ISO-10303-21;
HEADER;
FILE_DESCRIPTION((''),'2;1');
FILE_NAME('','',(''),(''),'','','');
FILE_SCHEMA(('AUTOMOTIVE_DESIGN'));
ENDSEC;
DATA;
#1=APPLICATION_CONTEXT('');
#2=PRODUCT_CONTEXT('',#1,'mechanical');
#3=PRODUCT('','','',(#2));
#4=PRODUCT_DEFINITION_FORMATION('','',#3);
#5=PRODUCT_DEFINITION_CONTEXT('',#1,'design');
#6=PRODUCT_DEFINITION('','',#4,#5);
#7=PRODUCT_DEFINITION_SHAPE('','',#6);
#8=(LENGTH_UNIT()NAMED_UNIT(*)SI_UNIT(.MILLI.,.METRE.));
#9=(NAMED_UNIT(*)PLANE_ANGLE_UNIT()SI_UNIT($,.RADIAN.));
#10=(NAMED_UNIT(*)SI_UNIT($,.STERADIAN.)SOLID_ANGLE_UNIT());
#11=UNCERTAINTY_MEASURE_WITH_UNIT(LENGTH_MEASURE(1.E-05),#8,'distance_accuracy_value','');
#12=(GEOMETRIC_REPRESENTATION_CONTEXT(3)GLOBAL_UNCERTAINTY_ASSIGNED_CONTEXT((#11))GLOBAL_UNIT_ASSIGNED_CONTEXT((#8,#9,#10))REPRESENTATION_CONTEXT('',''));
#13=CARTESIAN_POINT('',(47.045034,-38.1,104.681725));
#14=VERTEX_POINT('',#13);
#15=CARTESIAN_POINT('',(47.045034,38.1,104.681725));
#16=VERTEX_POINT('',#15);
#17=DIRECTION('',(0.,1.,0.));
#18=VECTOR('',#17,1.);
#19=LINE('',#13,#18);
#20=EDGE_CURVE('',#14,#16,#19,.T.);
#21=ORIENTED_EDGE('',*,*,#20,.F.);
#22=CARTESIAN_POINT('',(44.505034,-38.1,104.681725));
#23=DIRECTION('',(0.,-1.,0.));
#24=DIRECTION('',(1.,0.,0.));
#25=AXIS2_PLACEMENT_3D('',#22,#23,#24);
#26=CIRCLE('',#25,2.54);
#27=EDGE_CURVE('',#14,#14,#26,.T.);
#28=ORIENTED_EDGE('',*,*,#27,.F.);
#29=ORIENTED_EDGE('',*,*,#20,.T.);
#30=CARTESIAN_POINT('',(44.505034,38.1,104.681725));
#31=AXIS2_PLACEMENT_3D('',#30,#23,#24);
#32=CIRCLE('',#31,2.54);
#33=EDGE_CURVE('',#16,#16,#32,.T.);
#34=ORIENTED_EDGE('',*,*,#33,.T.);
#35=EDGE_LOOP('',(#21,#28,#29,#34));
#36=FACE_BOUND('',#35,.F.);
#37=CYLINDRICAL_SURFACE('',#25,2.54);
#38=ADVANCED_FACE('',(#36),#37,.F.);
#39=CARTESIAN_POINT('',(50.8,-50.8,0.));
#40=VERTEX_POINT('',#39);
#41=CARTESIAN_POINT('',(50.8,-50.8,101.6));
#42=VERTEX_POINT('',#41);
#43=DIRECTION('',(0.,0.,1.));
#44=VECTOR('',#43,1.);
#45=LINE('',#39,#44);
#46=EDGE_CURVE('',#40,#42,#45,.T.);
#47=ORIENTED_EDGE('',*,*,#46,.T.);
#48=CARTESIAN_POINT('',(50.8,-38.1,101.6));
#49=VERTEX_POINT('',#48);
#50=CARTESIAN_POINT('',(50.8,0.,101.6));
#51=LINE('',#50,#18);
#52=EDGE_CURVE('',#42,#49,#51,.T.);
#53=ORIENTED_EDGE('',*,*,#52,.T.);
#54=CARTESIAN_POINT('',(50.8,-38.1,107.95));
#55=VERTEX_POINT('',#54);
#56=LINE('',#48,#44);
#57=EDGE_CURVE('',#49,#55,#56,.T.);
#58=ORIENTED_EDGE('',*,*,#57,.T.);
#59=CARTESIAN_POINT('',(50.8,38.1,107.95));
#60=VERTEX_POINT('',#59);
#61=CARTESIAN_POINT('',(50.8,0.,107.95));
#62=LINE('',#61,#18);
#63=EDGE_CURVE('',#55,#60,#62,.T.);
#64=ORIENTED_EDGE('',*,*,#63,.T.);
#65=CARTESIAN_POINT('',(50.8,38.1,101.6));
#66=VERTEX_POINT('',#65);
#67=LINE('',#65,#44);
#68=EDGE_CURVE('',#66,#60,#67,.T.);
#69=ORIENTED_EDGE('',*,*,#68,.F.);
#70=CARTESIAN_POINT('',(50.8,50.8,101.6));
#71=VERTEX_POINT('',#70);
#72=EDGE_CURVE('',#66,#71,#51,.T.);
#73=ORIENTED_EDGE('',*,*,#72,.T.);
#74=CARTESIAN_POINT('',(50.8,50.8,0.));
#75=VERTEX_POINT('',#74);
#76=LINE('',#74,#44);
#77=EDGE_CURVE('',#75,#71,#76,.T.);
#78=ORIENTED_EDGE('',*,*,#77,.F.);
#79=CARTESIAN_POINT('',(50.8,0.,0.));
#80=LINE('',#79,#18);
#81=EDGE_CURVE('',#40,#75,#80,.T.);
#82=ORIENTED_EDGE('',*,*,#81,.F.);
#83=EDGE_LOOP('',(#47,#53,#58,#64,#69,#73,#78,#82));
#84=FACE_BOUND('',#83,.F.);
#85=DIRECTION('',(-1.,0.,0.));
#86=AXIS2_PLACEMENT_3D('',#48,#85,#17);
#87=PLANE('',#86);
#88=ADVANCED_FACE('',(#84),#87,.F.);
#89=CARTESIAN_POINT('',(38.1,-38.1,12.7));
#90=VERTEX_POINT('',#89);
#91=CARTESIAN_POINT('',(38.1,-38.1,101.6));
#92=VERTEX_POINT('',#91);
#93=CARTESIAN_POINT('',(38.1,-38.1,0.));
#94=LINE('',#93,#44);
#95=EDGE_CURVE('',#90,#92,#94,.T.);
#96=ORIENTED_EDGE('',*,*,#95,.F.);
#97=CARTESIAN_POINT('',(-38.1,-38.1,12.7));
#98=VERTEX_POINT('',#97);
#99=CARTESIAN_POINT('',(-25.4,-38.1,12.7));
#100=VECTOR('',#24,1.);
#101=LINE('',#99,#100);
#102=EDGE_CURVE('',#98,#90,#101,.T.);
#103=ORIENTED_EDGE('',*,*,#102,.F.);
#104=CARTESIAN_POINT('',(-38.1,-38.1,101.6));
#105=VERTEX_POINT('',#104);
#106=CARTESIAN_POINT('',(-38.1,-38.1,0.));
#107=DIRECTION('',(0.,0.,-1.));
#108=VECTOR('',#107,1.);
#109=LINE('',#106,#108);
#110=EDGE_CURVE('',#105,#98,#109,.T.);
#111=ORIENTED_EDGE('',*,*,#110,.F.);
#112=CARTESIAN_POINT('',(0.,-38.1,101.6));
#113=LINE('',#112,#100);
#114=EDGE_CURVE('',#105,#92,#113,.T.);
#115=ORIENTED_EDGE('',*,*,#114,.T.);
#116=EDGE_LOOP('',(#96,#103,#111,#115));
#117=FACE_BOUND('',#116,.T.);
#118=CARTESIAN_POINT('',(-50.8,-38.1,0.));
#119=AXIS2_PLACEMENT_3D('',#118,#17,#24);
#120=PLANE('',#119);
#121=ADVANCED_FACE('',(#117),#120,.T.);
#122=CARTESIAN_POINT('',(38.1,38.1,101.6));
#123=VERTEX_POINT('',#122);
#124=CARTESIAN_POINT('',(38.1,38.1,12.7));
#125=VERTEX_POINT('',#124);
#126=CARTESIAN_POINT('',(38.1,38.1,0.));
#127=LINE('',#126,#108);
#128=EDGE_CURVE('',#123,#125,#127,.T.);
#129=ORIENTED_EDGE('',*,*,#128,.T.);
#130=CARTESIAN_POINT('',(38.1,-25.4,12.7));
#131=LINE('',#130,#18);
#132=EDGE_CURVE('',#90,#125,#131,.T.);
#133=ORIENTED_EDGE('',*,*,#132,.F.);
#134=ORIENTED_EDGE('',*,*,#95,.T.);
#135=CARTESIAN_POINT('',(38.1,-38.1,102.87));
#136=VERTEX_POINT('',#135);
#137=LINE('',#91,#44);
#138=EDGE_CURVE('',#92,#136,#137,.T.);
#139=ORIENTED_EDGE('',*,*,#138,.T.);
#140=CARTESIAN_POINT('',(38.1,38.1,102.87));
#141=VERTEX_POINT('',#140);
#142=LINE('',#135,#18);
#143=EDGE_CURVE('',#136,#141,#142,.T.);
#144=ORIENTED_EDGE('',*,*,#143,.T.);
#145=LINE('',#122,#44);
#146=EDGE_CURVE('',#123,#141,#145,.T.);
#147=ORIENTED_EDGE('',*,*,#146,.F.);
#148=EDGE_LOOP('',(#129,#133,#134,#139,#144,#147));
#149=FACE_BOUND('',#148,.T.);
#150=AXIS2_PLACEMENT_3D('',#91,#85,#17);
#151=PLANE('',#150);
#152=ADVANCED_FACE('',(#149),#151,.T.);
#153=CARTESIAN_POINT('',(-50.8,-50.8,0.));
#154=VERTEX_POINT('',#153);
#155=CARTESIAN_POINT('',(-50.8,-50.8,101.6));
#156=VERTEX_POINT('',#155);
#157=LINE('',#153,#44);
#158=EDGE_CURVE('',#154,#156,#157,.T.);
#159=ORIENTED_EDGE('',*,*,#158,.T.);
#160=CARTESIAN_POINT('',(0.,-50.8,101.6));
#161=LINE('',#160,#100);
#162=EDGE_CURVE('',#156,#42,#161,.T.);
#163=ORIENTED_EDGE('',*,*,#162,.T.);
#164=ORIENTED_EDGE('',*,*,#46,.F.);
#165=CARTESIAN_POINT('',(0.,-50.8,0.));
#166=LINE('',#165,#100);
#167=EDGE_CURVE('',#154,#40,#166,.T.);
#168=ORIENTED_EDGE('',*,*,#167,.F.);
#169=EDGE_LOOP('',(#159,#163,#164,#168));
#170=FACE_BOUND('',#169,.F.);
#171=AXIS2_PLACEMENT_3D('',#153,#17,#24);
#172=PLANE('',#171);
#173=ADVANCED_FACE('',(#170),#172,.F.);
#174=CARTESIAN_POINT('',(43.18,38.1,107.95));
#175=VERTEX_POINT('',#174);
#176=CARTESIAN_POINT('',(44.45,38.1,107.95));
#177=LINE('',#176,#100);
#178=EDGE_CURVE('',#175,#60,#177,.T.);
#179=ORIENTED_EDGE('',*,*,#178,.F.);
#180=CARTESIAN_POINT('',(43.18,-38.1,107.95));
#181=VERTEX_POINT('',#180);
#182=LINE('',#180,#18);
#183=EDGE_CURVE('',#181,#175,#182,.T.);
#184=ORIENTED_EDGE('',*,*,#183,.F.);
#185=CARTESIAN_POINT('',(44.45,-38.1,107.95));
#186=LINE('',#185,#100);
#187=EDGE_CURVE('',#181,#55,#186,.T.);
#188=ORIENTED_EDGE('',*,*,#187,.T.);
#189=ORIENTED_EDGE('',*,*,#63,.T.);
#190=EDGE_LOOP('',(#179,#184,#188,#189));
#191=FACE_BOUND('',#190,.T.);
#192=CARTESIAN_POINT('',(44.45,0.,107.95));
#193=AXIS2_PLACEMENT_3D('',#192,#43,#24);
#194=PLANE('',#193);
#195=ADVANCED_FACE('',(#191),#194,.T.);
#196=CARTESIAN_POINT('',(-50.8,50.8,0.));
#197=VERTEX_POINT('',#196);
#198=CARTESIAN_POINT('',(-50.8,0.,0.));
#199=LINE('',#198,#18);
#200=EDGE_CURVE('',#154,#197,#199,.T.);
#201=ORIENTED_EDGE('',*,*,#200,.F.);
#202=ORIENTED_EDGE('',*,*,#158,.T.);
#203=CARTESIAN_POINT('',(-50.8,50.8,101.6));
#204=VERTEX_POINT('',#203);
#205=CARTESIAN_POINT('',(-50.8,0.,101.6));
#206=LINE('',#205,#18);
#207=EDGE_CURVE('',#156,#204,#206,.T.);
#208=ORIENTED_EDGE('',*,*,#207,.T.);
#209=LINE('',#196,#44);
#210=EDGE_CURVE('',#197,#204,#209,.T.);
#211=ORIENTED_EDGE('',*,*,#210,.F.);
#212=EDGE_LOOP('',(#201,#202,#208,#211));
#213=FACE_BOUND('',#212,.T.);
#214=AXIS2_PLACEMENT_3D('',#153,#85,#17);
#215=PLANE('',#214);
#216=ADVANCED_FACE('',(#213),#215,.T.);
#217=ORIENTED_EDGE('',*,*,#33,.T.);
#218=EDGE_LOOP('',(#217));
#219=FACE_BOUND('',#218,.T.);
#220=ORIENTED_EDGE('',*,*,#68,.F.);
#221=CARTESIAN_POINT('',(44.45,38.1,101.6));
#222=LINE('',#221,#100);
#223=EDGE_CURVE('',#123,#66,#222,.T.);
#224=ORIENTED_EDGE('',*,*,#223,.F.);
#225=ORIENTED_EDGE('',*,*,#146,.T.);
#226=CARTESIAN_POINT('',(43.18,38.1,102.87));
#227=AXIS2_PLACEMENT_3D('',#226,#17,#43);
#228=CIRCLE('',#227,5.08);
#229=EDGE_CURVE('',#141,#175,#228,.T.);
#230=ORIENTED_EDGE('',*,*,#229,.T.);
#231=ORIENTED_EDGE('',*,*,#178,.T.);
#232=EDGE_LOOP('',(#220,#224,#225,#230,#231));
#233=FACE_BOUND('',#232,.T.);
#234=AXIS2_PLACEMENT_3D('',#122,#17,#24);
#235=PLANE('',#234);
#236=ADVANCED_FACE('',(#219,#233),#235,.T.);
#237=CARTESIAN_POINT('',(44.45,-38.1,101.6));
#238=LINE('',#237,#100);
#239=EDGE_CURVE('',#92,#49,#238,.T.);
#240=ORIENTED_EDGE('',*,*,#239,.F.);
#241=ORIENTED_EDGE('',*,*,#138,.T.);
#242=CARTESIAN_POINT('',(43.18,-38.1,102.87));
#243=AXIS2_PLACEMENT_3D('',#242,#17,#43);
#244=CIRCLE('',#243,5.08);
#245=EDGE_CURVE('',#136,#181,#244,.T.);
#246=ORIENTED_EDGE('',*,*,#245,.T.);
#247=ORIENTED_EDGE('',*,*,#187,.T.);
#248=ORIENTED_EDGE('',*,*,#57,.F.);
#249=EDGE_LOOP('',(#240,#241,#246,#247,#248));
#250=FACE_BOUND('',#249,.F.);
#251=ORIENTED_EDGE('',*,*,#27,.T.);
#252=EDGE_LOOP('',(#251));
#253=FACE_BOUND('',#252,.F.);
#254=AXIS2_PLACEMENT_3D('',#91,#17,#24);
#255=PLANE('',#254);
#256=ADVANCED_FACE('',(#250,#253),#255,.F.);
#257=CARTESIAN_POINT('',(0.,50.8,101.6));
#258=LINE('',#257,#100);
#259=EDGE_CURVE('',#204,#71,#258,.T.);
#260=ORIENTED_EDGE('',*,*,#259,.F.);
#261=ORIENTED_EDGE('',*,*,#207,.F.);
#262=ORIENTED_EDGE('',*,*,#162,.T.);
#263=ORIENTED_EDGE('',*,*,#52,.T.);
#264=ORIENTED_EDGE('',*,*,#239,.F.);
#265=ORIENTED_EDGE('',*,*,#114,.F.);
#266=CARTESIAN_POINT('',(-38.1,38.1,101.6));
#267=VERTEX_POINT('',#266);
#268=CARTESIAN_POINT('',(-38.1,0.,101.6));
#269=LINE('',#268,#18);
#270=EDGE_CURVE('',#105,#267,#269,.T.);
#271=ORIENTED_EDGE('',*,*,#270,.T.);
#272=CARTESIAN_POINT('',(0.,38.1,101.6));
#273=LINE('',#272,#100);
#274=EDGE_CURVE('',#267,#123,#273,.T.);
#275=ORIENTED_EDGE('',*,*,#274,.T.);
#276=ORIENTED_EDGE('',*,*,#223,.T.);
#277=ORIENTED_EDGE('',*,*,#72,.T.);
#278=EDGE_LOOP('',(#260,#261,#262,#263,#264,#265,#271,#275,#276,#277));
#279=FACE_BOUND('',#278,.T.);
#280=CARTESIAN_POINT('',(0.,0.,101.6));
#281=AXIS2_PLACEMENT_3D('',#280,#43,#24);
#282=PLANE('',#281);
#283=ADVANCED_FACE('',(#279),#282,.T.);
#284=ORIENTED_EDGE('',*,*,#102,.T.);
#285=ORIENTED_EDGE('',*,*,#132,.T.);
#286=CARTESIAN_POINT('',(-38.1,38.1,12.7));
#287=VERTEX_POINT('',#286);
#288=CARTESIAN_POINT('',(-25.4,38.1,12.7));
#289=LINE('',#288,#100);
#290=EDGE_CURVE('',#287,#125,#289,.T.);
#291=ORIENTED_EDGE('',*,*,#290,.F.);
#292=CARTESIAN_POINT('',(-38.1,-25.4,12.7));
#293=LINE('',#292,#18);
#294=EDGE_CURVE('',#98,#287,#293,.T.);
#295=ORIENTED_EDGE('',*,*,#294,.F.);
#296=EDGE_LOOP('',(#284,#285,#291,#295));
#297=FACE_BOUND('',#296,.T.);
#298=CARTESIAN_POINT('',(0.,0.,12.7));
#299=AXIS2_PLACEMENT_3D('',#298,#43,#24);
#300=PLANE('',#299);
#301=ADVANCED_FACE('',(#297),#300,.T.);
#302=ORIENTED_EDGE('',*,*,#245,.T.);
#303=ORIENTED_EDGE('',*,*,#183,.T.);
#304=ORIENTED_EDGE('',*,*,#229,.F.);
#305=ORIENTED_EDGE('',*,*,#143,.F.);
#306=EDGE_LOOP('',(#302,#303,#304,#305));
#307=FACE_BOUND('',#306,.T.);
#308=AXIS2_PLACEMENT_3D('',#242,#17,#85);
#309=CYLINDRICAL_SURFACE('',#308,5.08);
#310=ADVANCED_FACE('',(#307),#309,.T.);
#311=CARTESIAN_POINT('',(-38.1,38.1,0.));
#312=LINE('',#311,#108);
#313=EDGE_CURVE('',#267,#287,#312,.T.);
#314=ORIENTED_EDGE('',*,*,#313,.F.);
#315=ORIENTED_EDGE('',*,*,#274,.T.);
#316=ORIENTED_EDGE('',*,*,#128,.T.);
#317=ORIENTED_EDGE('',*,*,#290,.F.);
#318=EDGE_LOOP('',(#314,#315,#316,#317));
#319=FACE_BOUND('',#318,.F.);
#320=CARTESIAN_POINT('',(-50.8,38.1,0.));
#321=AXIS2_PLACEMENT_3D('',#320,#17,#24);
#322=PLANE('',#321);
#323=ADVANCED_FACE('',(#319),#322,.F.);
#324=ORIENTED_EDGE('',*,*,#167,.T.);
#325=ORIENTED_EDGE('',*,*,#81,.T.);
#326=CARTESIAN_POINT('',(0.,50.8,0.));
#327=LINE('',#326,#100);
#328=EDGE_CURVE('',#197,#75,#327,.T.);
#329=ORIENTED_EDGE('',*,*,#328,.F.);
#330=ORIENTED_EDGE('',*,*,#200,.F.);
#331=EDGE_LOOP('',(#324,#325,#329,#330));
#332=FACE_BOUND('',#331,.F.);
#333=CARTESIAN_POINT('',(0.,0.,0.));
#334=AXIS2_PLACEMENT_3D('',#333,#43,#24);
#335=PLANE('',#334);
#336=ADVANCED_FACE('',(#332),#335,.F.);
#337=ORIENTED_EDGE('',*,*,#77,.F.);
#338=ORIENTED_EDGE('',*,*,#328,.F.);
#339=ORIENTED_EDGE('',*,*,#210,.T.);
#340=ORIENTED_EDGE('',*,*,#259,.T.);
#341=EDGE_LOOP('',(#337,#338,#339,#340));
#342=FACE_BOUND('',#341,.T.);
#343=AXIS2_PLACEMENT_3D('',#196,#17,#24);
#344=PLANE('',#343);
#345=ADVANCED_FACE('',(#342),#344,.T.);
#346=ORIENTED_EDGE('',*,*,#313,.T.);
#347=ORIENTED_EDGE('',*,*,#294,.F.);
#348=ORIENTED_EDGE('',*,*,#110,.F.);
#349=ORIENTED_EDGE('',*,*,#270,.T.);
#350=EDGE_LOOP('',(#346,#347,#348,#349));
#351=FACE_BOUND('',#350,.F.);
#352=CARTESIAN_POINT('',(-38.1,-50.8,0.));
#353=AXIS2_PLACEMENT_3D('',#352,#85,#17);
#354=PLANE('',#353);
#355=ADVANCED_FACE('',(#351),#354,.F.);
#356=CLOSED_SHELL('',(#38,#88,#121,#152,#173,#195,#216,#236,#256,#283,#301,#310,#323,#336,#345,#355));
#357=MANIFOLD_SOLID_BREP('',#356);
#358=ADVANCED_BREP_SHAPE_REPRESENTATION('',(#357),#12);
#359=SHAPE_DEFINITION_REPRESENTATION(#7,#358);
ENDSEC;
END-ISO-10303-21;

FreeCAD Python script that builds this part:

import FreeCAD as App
import Part
import Sketcher

V = App.Vector
Q = App.Units.Quantity


def edges_at(feature, points):
    """Names of the edges that pass closest to the given points."""
    edges = feature.Shape.Edges
    near = lambda p: min(range(len(edges)), key=lambda i: edges[i].distToShape(Part.Vertex(*p))[0])
    return sorted({f"Edge{near(p) + 1}" for p in points})


def faces_at(feature, points):
    """Names of the faces that lie closest to the given points."""
    faces = feature.Shape.Faces
    near = lambda p: min(range(len(faces)), key=lambda i: faces[i].distToShape(Part.Vertex(*p))[0])
    return sorted({f"Face{near(p) + 1}" for p in points})


def add_polygon(sketch, points):
    """Adds a closed chain of lines whose ends are joined by coincident constraints."""
    first, n = sketch.GeometryCount, len(points)
    for a, b in zip(points, points[1:] + points[:1]):
        sketch.addGeometry(Part.LineSegment(App.Vector(*a, 0), App.Vector(*b, 0)), False)
    for i in range(n):
        sketch.addConstraint(Sketcher.Constraint("Coincident", first + i, 2, first + (i + 1) % n, 1))

doc = App.newDocument("Part")
body = doc.addObject("PartDesign::Body", "Body")

sketch1 = body.newObject("Sketcher::SketchObject", "Sketch")
sketch1.AttachmentSupport = (doc.getObject("XY_Plane"), [""])
sketch1.MapMode = "FlatFace"
add_polygon(sketch1, [(-50.8, 50.8), (-50.8, -50.8), (50.8, -50.8), (50.8, 50.8)])
sketch1.addConstraint([
    Sketcher.Constraint("Vertical", 0),
    Sketcher.Constraint("Horizontal", 1),
    Sketcher.Constraint("Vertical", 2),
    Sketcher.Constraint("Horizontal", 3),
    Sketcher.Constraint("Symmetric", 0, 2, 2, 2, -1, 1),
    Sketcher.Constraint("Equal", 3, 0),
    Sketcher.Constraint("DistanceX", 1, 1, 1, 2, Q("4 in")),
])
pad1 = body.newObject("PartDesign::Pad", "Pad")
pad1.Profile = sketch1
pad1.Length = Q("4 in")
doc.recompute()

thickness = body.newObject("PartDesign::Thickness", "Thickness")
thickness.Base = (pad1, faces_at(pad1, [(0, 0, 101.6)]))
thickness.Value = Q("0.5 in")
thickness.Reversed = True
thickness.Join = "Arc"

sketch2 = body.newObject("Sketcher::SketchObject", "Sketch001")
sketch2.AttachmentSupport = (doc.getObject("XY_Plane"), [""])
sketch2.MapMode = "FlatFace"
sketch2.AttachmentOffset = App.Placement(V(0, 0, 4 * 25.4), App.Rotation())
add_polygon(sketch2, [(38.1, 38.1), (38.1, -38.1), (50.8, -38.1), (50.8, 38.1)])
sketch2.addConstraint([
    Sketcher.Constraint("Vertical", 0),
    Sketcher.Constraint("Horizontal", 1),
    Sketcher.Constraint("Vertical", 2),
    Sketcher.Constraint("Horizontal", 3),
    Sketcher.Constraint("DistanceY", 0, 2, 0, 1, Q("3 in")),
    Sketcher.Constraint("DistanceX", 1, 1, 1, 2, Q("0.5 in")),
    Sketcher.Constraint("DistanceX", -1, 1, 1, 2, Q("2 in")),
    Sketcher.Constraint("DistanceY", 0, 2, -1, 1, Q("1.5 in")),
])
pad2 = body.newObject("PartDesign::Pad", "Pad001")
pad2.Profile = sketch2
pad2.Length = Q("0.25 in")

sketch3 = body.newObject("Sketcher::SketchObject", "Sketch002")
sketch3.AttachmentSupport = (doc.getObject("XZ_Plane"), [""])
sketch3.MapMode = "FlatFace"
sketch3.AttachmentOffset = App.Placement(V(0, 0, 1.5 * 25.4), App.Rotation())
sketch3.addGeometry(Part.Circle(V(44.505034, 104.681725, 0), V(0, 0, 1), 2.54), False)
sketch3.addConstraint([
    Sketcher.Constraint("Diameter", 0, Q("0.2 in")),
    Sketcher.Constraint("DistanceX", -1, 1, 0, 3, 44.505034),
    Sketcher.Constraint("DistanceY", -1, 1, 0, 3, 104.681725),
])
pocket1 = body.newObject("PartDesign::Pocket", "Pocket")
pocket1.Profile = sketch3
pocket1.Length = Q("3.775 in")
doc.recompute()

fillet = body.newObject("PartDesign::Fillet", "Fillet")
fillet.Base = (pocket1, edges_at(pocket1, [(38.1, 0, 107.95)]))
fillet.Radius = Q("0.2 in")

doc.recompute()
